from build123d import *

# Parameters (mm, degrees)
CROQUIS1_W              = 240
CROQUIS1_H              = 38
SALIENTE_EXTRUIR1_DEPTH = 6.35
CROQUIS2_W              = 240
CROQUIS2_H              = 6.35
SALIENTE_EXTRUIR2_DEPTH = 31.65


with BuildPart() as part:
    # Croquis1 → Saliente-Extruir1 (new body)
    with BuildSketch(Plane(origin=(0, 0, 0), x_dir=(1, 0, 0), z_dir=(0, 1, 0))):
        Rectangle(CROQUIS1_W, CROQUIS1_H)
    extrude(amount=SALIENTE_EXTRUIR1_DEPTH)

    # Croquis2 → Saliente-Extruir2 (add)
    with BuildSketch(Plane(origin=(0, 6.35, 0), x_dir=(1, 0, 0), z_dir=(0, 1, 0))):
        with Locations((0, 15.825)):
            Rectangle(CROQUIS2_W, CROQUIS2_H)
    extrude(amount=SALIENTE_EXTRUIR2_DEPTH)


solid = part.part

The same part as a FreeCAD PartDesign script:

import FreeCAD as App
import Part
import Sketcher
from FreeCAD import Vector
Q = App.Units.Quantity


def add_polygon(sketch, points):
    """Adds a closed chain of lines whose ends are joined by coincident constraints."""
    first, n = sketch.GeometryCount, len(points)
    for a, b in zip(points, points[1:] + points[:1]):
        sketch.addGeometry(Part.LineSegment(App.Vector(*a, 0), App.Vector(*b, 0)), False)
    for i in range(n):
        sketch.addConstraint(Sketcher.Constraint("Coincident", first + i, 2, first + (i + 1) % n, 1))

doc = App.newDocument("Part")
body = doc.addObject("PartDesign::Body", "Body")

sketch1 = body.newObject("Sketcher::SketchObject", "Sketch")
sketch1.AttachmentSupport = (doc.getObject("XZ_Plane"), [""])
sketch1.MapMode = "FlatFace"
add_polygon(sketch1, [(-120, -19), (-120, 19), (120, 19), (120, -19)])
sketch1.addConstraint(Sketcher.Constraint("Vertical", 0))
sketch1.addConstraint(Sketcher.Constraint("Horizontal", 1))
sketch1.addConstraint(Sketcher.Constraint("Vertical", 2))
sketch1.addConstraint(Sketcher.Constraint("Horizontal", 3))
sketch1.addConstraint(Sketcher.Constraint("Symmetric", 0, 2, 2, 2, -1, 1))
sketch1.addConstraint(Sketcher.Constraint("DistanceX", 1, 1, 1, 2, Q("240 mm")))
sketch1.addConstraint(Sketcher.Constraint("DistanceY", 0, 1, 0, 2, Q("38 mm")))
pad1 = body.newObject("PartDesign::Pad", "Pad")
pad1.Profile = sketch1
pad1.Length = 6.35
pad1.Reversed = True

sketch2 = body.newObject("Sketcher::SketchObject", "Sketch001")
sketch2.AttachmentSupport = (doc.getObject("XZ_Plane"), [""])
sketch2.MapMode = "FlatFace"
sketch2.AttachmentOffset = App.Placement(Vector(0, 0, -6.35), App.Rotation())
add_polygon(sketch2, [(-120, -19), (-120, -13), (120, -13), (120, -19)])
sketch2.addConstraint(Sketcher.Constraint("Vertical", 0))
sketch2.addConstraint(Sketcher.Constraint("Horizontal", 1))
sketch2.addConstraint(Sketcher.Constraint("Vertical", 2))
sketch2.addConstraint(Sketcher.Constraint("Horizontal", 3))
sketch2.addConstraint(Sketcher.Constraint("DistanceX", 1, 1, 1, 2, Q("240 mm")))
sketch2.addConstraint(Sketcher.Constraint("DistanceX", 0, 2, -1, 1, Q("120 mm")))
sketch2.addConstraint(Sketcher.Constraint("DistanceY", 2, 2, -1, 1, Q("19 mm")))
sketch2.addConstraint(Sketcher.Constraint("DistanceY", 0, 1, 0, 2, Q("6.35 mm")))
pad2 = body.newObject("PartDesign::Pad", "Pad001")
pad2.Profile = sketch2
pad2.Length = 31.65
pad2.Reversed = True

doc.recompute()
